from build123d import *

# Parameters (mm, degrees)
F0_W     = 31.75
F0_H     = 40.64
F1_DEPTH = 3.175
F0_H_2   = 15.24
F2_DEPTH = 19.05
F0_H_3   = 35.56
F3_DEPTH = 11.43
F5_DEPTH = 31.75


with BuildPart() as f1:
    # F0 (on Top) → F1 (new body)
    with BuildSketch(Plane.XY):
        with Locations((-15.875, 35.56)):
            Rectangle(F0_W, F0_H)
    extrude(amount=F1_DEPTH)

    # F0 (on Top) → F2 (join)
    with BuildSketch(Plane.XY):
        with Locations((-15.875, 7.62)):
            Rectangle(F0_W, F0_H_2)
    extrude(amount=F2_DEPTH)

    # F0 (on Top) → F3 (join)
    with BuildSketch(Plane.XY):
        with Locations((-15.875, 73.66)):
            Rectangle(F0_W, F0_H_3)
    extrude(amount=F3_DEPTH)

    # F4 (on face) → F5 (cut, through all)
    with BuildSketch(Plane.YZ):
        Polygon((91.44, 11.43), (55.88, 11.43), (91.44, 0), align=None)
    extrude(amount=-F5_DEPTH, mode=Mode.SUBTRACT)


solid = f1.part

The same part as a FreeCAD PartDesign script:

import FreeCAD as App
import Part
import Sketcher
Q = App.Units.Quantity

doc = App.newDocument("Part")
params = doc.addObject("Spreadsheet::Sheet", "Params")
for row, (alias, value) in enumerate([
    ("sketch1_height", "1.6 in"),
    ("sketch1_width", "1.25 in"),
    ("pad1_length", "0.125 in"),
    ("sketch2_height", "0.6 in"),
    ("sketch2_width", "1.25 in"),
    ("pad2_length", "0.75 in"),
    ("sketch3_height", "1.4 in"),
    ("sketch3_width", "1.25 in"),
    ("pad3_length", "0.45 in"),
    ("sketch4_width", "1.4 in"),
    ("sketch4_height", "0.45 in"),
], start=1):
    params.set(f"A{row}", alias)
    params.set(f"B{row}", "=" + value)
    params.setAlias(f"B{row}", alias)

body = doc.addObject("PartDesign::Body", "Body")

# Sketch on XY plane
sketch1 = body.newObject("Sketcher::SketchObject", "Sketch")
sketch1.AttachmentSupport = (doc.getObject("XY_Plane"), [""])
sketch1.MapMode = "FlatFace"
sketch1.addGeometry(Part.LineSegment(App.Vector(-32, 56, 0), App.Vector(-32, 15, 0)), False)
sketch1.addGeometry(Part.LineSegment(App.Vector(-32, 15, 0), App.Vector(0, 15, 0)), False)
sketch1.addGeometry(Part.LineSegment(App.Vector(0, 15, 0), App.Vector(0, 56, 0)), False)
sketch1.addGeometry(Part.LineSegment(App.Vector(0, 56, 0), App.Vector(-32, 56, 0)), False)
sketch1.addConstraint(Sketcher.Constraint("Coincident", 0, 2, 1, 1))
sketch1.addConstraint(Sketcher.Constraint("Coincident", 1, 2, 2, 1))
sketch1.addConstraint(Sketcher.Constraint("Coincident", 2, 2, 3, 1))
sketch1.addConstraint(Sketcher.Constraint("Coincident", 3, 2, 0, 1))
sketch1.addConstraint(Sketcher.Constraint("Vertical", 0))
sketch1.addConstraint(Sketcher.Constraint("Horizontal", 1))
sketch1.addConstraint(Sketcher.Constraint("Vertical", 2))
sketch1.addConstraint(Sketcher.Constraint("Horizontal", 3))
sketch1.addConstraint(Sketcher.Constraint("PointOnObject", 1, 2, -2))
sketch1.addConstraint(Sketcher.Constraint("DistanceY", 0, 2, 0, 1, Q("1.6 in")))
sketch1.addConstraint(Sketcher.Constraint("DistanceX", 1, 1, 1, 2, Q("1.25 in")))
sketch1.addConstraint(Sketcher.Constraint("DistanceY", -1, 1, 0, 2, Q("0.6 in")))
sketch1.setExpression("Constraints[9]", "Params.sketch1_height")
sketch1.setExpression("Constraints[10]", "Params.sketch1_width")
pad1 = body.newObject("PartDesign::Pad", "Pad")
pad1.Profile = sketch1
pad1.setExpression("Length", "Params.pad1_length")

# Sketch on XY plane
sketch2 = body.newObject("Sketcher::SketchObject", "Sketch001")
sketch2.AttachmentSupport = (doc.getObject("XY_Plane"), [""])
sketch2.MapMode = "FlatFace"
sketch2.addGeometry(Part.LineSegment(App.Vector(-32, 15, 0), App.Vector(-32, 0, 0)), False)
sketch2.addGeometry(Part.LineSegment(App.Vector(-32, 0, 0), App.Vector(0, 0, 0)), False)
sketch2.addGeometry(Part.LineSegment(App.Vector(0, 0, 0), App.Vector(0, 15, 0)), False)
sketch2.addGeometry(Part.LineSegment(App.Vector(0, 15, 0), App.Vector(-32, 15, 0)), False)
sketch2.addConstraint(Sketcher.Constraint("Coincident", 0, 2, 1, 1))
sketch2.addConstraint(Sketcher.Constraint("Coincident", 1, 2, 2, 1))
sketch2.addConstraint(Sketcher.Constraint("Coincident", 2, 2, 3, 1))
sketch2.addConstraint(Sketcher.Constraint("Coincident", 3, 2, 0, 1))
sketch2.addConstraint(Sketcher.Constraint("Vertical", 0))
sketch2.addConstraint(Sketcher.Constraint("Horizontal", 1))
sketch2.addConstraint(Sketcher.Constraint("Vertical", 2))
sketch2.addConstraint(Sketcher.Constraint("Horizontal", 3))
sketch2.addConstraint(Sketcher.Constraint("Coincident", 1, 2, -1, 1))
sketch2.addConstraint(Sketcher.Constraint("DistanceY", 0, 2, 0, 1, Q("0.6 in")))
sketch2.addConstraint(Sketcher.Constraint("DistanceX", 1, 1, 1, 2, Q("1.25 in")))
sketch2.setExpression("Constraints[9]", "Params.sketch2_height")
sketch2.setExpression("Constraints[10]", "Params.sketch2_width")
pad2 = body.newObject("PartDesign::Pad", "Pad001")
pad2.Profile = sketch2
pad2.setExpression("Length", "Params.pad2_length")

# Sketch on XY plane
sketch3 = body.newObject("Sketcher::SketchObject", "Sketch002")
sketch3.AttachmentSupport = (doc.getObject("XY_Plane"), [""])
sketch3.MapMode = "FlatFace"
sketch3.addGeometry(Part.LineSegment(App.Vector(-32, 91, 0), App.Vector(-32, 56, 0)), False)
sketch3.addGeometry(Part.LineSegment(App.Vector(-32, 56, 0), App.Vector(0, 56, 0)), False)
sketch3.addGeometry(Part.LineSegment(App.Vector(0, 56, 0), App.Vector(0, 91, 0)), False)
sketch3.addGeometry(Part.LineSegment(App.Vector(0, 91, 0), App.Vector(-32, 91, 0)), False)
sketch3.addConstraint(Sketcher.Constraint("Coincident", 0, 2, 1, 1))
sketch3.addConstraint(Sketcher.Constraint("Coincident", 1, 2, 2, 1))
sketch3.addConstraint(Sketcher.Constraint("Coincident", 2, 2, 3, 1))
sketch3.addConstraint(Sketcher.Constraint("Coincident", 3, 2, 0, 1))
sketch3.addConstraint(Sketcher.Constraint("Vertical", 0))
sketch3.addConstraint(Sketcher.Constraint("Horizontal", 1))
sketch3.addConstraint(Sketcher.Constraint("Vertical", 2))
sketch3.addConstraint(Sketcher.Constraint("Horizontal", 3))
sketch3.addConstraint(Sketcher.Constraint("PointOnObject", 1, 2, -2))
sketch3.addConstraint(Sketcher.Constraint("DistanceY", 0, 2, 0, 1, Q("1.4 in")))
sketch3.addConstraint(Sketcher.Constraint("DistanceX", 1, 1, 1, 2, Q("1.25 in")))
sketch3.addConstraint(Sketcher.Constraint("DistanceY", -1, 1, 0, 2, Q("2.2 in")))
sketch3.setExpression("Constraints[9]", "Params.sketch3_height")
sketch3.setExpression("Constraints[10]", "Params.sketch3_width")
pad3 = body.newObject("PartDesign::Pad", "Pad002")
pad3.Profile = sketch3
pad3.setExpression("Length", "Params.pad3_length")

# Sketch on YZ plane
sketch4 = body.newObject("Sketcher::SketchObject", "Sketch003")
sketch4.AttachmentSupport = (doc.getObject("YZ_Plane"), [""])
sketch4.MapMode = "FlatFace"
sketch4.addGeometry(Part.LineSegment(App.Vector(91, 11, 0), App.Vector(56, 11, 0)), False)
sketch4.addGeometry(Part.LineSegment(App.Vector(56, 11, 0), App.Vector(91, 0, 0)), False)
sketch4.addGeometry(Part.LineSegment(App.Vector(91, 0, 0), App.Vector(91, 11, 0)), False)
sketch4.addConstraint(Sketcher.Constraint("Coincident", 0, 2, 1, 1))
sketch4.addConstraint(Sketcher.Constraint("Coincident", 1, 2, 2, 1))
sketch4.addConstraint(Sketcher.Constraint("Coincident", 2, 2, 0, 1))
sketch4.addConstraint(Sketcher.Constraint("Horizontal", 0))
sketch4.addConstraint(Sketcher.Constraint("Vertical", 2))
sketch4.addConstraint(Sketcher.Constraint("PointOnObject", 1, 2, -1))
sketch4.addConstraint(Sketcher.Constraint("DistanceX", 0, 2, 0, 1, Q("1.4 in")))
sketch4.addConstraint(Sketcher.Constraint("DistanceY", 2, 1, 2, 2, Q("0.45 in")))
sketch4.addConstraint(Sketcher.Constraint("DistanceX", -1, 1, 0, 2, Q("2.2 in")))
sketch4.setExpression("Constraints[6]", "Params.sketch4_width")
sketch4.setExpression("Constraints[7]", "Params.sketch4_height")
pocket1 = body.newObject("PartDesign::Pocket", "Pocket")
pocket1.Profile = sketch4
pocket1.Type = "ThroughAll"

doc.recompute()
